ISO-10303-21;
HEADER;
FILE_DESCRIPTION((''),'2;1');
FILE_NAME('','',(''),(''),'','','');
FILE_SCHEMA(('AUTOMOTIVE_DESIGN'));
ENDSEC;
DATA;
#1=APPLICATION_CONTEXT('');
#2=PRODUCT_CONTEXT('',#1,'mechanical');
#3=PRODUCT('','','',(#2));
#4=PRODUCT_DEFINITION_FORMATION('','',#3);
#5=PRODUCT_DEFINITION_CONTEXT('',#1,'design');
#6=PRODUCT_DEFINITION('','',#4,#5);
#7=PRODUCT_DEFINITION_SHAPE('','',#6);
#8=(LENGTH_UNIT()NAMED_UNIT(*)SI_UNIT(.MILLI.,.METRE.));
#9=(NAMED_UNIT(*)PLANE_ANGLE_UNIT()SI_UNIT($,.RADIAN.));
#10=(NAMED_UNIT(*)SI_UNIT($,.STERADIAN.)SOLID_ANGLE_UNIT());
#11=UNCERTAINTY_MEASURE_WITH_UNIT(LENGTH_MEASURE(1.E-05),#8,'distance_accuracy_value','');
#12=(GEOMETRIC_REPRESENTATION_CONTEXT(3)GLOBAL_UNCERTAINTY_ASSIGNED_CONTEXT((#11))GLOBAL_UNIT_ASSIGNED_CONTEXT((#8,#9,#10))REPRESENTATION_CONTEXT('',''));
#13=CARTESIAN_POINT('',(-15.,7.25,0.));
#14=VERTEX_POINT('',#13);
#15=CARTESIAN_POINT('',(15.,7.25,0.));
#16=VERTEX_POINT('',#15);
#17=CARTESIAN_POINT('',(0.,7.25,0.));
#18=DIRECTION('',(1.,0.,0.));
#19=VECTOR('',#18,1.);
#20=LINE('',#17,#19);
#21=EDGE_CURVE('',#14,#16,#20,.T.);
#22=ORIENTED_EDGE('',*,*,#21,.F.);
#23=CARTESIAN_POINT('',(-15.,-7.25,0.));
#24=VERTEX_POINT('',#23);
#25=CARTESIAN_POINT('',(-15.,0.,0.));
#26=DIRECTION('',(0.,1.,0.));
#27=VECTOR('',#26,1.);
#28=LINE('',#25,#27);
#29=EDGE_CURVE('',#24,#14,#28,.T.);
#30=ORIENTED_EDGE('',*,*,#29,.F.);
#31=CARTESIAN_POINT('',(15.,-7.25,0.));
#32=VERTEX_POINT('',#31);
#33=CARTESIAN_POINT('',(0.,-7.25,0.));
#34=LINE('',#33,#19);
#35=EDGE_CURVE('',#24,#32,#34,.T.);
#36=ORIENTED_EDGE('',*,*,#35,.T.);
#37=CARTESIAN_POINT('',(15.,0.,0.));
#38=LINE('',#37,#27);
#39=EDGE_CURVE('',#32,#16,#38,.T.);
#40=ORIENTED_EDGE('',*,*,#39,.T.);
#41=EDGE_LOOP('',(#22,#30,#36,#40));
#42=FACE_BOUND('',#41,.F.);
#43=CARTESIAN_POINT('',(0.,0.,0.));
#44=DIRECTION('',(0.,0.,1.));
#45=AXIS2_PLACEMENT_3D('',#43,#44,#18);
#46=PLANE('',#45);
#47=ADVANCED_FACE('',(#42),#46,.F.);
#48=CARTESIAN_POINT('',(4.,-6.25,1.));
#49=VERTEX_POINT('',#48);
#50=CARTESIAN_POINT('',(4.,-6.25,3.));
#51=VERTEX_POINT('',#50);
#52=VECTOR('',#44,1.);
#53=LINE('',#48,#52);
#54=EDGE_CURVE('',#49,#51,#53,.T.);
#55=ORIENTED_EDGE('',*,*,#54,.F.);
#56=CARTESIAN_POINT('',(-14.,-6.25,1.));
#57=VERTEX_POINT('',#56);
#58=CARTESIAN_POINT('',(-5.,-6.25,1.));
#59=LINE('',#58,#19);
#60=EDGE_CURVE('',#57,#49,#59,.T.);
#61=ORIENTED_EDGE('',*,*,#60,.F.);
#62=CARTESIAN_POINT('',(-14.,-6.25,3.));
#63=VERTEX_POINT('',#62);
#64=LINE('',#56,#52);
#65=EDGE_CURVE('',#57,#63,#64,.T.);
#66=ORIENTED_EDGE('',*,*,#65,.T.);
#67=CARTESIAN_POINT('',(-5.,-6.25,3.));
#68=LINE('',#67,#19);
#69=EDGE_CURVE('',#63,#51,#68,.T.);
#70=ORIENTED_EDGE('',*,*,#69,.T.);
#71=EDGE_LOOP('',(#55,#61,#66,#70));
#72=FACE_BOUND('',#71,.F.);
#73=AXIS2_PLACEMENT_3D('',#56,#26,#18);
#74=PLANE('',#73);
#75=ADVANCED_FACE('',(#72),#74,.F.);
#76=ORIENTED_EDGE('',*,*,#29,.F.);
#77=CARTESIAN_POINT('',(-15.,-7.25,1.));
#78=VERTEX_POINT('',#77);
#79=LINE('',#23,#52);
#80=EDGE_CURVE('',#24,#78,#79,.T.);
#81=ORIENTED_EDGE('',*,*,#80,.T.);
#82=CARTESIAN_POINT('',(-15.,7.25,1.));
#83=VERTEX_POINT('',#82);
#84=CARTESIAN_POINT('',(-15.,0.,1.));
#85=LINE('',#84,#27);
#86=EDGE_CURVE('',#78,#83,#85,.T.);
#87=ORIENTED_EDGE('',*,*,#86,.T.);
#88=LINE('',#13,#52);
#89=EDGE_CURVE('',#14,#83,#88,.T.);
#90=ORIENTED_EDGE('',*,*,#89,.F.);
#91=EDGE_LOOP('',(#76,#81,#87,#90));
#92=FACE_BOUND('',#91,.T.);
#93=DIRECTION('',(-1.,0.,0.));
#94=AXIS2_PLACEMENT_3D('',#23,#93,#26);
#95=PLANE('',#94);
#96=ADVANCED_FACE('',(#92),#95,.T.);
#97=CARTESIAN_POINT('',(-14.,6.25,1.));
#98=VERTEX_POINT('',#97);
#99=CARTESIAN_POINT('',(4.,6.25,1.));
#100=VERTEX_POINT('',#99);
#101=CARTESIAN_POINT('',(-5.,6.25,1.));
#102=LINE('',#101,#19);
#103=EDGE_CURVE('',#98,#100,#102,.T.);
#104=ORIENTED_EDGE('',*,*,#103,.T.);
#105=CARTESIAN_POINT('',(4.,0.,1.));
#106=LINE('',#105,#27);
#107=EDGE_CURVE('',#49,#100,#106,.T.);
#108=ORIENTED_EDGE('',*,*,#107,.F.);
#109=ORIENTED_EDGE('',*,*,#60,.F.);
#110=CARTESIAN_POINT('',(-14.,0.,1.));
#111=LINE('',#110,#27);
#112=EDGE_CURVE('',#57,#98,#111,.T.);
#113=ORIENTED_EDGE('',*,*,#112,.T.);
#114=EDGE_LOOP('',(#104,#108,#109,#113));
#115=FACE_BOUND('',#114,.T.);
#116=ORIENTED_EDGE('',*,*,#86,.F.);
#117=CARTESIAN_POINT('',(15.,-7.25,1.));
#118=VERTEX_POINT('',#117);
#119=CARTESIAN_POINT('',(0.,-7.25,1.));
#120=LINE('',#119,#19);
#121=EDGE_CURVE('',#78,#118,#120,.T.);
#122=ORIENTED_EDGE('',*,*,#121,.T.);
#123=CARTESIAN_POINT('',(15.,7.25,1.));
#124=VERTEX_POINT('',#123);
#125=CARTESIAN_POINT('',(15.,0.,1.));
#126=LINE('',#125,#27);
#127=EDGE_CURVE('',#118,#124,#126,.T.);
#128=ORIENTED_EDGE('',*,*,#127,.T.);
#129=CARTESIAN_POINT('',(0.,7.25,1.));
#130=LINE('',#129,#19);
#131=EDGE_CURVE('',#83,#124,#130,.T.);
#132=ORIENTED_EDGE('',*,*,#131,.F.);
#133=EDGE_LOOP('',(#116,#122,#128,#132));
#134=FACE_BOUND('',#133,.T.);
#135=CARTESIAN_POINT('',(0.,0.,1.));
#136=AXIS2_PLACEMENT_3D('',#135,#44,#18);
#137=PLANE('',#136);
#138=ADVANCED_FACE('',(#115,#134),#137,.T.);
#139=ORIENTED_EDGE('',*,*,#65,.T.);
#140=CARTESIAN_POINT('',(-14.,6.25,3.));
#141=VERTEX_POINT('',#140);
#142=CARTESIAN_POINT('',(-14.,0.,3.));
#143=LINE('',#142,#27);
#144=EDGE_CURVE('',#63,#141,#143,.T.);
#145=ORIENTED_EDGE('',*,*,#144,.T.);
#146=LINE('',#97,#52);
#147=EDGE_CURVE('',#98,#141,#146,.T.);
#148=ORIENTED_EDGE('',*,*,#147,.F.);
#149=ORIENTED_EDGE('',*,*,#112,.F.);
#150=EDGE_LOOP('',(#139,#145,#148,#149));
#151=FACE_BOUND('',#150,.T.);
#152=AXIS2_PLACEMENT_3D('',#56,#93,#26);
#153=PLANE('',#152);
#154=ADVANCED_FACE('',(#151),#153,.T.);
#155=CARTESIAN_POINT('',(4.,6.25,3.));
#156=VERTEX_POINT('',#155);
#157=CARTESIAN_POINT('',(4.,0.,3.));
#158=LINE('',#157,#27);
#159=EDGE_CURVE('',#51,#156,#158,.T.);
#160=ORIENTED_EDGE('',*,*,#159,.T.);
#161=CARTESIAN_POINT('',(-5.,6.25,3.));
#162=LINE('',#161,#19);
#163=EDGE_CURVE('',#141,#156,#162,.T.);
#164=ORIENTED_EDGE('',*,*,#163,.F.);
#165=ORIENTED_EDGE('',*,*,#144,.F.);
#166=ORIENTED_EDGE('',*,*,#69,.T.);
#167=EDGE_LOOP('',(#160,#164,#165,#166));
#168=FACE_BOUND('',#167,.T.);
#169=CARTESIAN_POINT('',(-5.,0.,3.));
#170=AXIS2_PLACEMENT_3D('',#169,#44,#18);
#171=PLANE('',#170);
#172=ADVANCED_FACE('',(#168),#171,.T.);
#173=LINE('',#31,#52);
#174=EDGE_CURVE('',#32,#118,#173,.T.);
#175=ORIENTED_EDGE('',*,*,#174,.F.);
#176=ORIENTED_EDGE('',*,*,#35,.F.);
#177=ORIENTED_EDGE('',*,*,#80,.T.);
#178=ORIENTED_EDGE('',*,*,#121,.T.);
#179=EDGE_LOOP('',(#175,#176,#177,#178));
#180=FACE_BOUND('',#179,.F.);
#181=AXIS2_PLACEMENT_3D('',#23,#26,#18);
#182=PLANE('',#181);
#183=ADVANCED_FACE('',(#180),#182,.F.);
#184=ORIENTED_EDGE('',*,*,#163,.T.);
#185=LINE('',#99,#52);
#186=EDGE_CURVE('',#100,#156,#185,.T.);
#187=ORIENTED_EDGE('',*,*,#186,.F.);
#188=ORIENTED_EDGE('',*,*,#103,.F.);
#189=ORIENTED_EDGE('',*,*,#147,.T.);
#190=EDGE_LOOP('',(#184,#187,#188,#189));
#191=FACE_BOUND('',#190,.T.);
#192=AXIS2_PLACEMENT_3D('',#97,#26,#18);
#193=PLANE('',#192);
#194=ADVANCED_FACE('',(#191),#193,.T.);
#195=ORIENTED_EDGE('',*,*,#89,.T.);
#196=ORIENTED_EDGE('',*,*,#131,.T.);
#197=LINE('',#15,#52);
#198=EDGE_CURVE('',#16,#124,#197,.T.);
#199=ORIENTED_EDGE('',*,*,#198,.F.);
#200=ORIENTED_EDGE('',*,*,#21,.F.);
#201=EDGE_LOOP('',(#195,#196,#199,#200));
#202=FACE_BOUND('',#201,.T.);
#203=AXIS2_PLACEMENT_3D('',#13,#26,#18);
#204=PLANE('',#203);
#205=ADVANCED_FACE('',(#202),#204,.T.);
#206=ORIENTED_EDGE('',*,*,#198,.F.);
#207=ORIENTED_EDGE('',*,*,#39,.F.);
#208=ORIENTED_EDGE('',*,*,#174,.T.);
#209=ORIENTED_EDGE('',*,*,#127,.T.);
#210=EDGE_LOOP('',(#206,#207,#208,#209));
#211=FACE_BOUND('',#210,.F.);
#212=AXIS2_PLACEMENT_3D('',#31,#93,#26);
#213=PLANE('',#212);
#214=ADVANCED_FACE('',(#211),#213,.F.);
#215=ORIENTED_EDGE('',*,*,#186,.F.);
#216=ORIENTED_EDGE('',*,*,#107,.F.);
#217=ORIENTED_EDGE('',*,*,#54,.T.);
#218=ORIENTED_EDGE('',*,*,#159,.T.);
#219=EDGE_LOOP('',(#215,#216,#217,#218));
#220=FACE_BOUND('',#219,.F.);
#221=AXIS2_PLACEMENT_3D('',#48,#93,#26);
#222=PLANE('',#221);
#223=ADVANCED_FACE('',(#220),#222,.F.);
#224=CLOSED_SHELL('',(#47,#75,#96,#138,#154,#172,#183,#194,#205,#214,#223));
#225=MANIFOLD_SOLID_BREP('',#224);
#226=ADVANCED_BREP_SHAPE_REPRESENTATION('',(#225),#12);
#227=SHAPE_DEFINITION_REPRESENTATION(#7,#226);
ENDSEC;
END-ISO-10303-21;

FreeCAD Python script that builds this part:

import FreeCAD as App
import Part
import Sketcher

V = App.Vector
Q = App.Units.Quantity

doc = App.newDocument("Part")
body = doc.addObject("PartDesign::Body", "Body")

sketch1 = body.newObject("Sketcher::SketchObject", "Sketch")
sketch1.AttachmentSupport = (doc.getObject("XY_Plane"), [""])
sketch1.MapMode = "FlatFace"
sketch1.addGeometry(Part.LineSegment(V(-15, 7, 0), V(-15, -7, 0)), False)
sketch1.addGeometry(Part.LineSegment(V(-15, -7, 0), V(15, -7, 0)), False)
sketch1.addGeometry(Part.LineSegment(V(15, -7, 0), V(15, 7, 0)), False)
sketch1.addGeometry(Part.LineSegment(V(15, 7, 0), V(-15, 7, 0)), False)
sketch1.addConstraint(Sketcher.Constraint("Coincident", 0, 2, 1, 1))
sketch1.addConstraint(Sketcher.Constraint("Coincident", 1, 2, 2, 1))
sketch1.addConstraint(Sketcher.Constraint("Coincident", 2, 2, 3, 1))
sketch1.addConstraint(Sketcher.Constraint("Coincident", 3, 2, 0, 1))
sketch1.addConstraint(Sketcher.Constraint("Vertical", 0))
sketch1.addConstraint(Sketcher.Constraint("Horizontal", 1))
sketch1.addConstraint(Sketcher.Constraint("Vertical", 2))
sketch1.addConstraint(Sketcher.Constraint("Horizontal", 3))
sketch1.addConstraint(Sketcher.Constraint("Symmetric", 0, 2, 2, 2, -1, 1))
sketch1.addConstraint(Sketcher.Constraint("DistanceX", 1, 1, 1, 2, Q("30 mm")))
sketch1.addConstraint(Sketcher.Constraint("DistanceY", 0, 2, 0, 1, Q("14.5 mm")))
pad1 = body.newObject("PartDesign::Pad", "Pad")
pad1.Profile = sketch1
pad1.Length = 1

sketch2 = body.newObject("Sketcher::SketchObject", "Sketch001")
sketch2.AttachmentSupport = (doc.getObject("XY_Plane"), [""])
sketch2.MapMode = "FlatFace"
sketch2.AttachmentOffset = App.Placement(V(0, 0, 1), App.Rotation())
sketch2.addGeometry(Part.LineSegment(V(-14, 6, 0), V(-14, -6, 0)), False)
sketch2.addGeometry(Part.LineSegment(V(-14, -6, 0), V(4, -6, 0)), False)
sketch2.addGeometry(Part.LineSegment(V(4, -6, 0), V(4, 6, 0)), False)
sketch2.addGeometry(Part.LineSegment(V(4, 6, 0), V(-14, 6, 0)), False)
sketch2.addConstraint(Sketcher.Constraint("Coincident", 0, 2, 1, 1))
sketch2.addConstraint(Sketcher.Constraint("Coincident", 1, 2, 2, 1))
sketch2.addConstraint(Sketcher.Constraint("Coincident", 2, 2, 3, 1))
sketch2.addConstraint(Sketcher.Constraint("Coincident", 3, 2, 0, 1))
sketch2.addConstraint(Sketcher.Constraint("Vertical", 0))
sketch2.addConstraint(Sketcher.Constraint("Horizontal", 1))
sketch2.addConstraint(Sketcher.Constraint("Vertical", 2))
sketch2.addConstraint(Sketcher.Constraint("Horizontal", 3))
sketch2.addConstraint(Sketcher.Constraint("DistanceX", 1, 1, 1, 2, Q("18 mm")))
sketch2.addConstraint(Sketcher.Constraint("DistanceY", 0, 2, 0, 1, Q("12.5 mm")))
sketch2.addConstraint(Sketcher.Constraint("DistanceX", 0, 2, -1, 1, Q("14 mm")))
sketch2.addConstraint(Sketcher.Constraint("DistanceY", 0, 2, -1, 1, Q("6.25 mm")))
pad2 = body.newObject("PartDesign::Pad", "Pad001")
pad2.Profile = sketch2
pad2.Length = 2

doc.recompute()
